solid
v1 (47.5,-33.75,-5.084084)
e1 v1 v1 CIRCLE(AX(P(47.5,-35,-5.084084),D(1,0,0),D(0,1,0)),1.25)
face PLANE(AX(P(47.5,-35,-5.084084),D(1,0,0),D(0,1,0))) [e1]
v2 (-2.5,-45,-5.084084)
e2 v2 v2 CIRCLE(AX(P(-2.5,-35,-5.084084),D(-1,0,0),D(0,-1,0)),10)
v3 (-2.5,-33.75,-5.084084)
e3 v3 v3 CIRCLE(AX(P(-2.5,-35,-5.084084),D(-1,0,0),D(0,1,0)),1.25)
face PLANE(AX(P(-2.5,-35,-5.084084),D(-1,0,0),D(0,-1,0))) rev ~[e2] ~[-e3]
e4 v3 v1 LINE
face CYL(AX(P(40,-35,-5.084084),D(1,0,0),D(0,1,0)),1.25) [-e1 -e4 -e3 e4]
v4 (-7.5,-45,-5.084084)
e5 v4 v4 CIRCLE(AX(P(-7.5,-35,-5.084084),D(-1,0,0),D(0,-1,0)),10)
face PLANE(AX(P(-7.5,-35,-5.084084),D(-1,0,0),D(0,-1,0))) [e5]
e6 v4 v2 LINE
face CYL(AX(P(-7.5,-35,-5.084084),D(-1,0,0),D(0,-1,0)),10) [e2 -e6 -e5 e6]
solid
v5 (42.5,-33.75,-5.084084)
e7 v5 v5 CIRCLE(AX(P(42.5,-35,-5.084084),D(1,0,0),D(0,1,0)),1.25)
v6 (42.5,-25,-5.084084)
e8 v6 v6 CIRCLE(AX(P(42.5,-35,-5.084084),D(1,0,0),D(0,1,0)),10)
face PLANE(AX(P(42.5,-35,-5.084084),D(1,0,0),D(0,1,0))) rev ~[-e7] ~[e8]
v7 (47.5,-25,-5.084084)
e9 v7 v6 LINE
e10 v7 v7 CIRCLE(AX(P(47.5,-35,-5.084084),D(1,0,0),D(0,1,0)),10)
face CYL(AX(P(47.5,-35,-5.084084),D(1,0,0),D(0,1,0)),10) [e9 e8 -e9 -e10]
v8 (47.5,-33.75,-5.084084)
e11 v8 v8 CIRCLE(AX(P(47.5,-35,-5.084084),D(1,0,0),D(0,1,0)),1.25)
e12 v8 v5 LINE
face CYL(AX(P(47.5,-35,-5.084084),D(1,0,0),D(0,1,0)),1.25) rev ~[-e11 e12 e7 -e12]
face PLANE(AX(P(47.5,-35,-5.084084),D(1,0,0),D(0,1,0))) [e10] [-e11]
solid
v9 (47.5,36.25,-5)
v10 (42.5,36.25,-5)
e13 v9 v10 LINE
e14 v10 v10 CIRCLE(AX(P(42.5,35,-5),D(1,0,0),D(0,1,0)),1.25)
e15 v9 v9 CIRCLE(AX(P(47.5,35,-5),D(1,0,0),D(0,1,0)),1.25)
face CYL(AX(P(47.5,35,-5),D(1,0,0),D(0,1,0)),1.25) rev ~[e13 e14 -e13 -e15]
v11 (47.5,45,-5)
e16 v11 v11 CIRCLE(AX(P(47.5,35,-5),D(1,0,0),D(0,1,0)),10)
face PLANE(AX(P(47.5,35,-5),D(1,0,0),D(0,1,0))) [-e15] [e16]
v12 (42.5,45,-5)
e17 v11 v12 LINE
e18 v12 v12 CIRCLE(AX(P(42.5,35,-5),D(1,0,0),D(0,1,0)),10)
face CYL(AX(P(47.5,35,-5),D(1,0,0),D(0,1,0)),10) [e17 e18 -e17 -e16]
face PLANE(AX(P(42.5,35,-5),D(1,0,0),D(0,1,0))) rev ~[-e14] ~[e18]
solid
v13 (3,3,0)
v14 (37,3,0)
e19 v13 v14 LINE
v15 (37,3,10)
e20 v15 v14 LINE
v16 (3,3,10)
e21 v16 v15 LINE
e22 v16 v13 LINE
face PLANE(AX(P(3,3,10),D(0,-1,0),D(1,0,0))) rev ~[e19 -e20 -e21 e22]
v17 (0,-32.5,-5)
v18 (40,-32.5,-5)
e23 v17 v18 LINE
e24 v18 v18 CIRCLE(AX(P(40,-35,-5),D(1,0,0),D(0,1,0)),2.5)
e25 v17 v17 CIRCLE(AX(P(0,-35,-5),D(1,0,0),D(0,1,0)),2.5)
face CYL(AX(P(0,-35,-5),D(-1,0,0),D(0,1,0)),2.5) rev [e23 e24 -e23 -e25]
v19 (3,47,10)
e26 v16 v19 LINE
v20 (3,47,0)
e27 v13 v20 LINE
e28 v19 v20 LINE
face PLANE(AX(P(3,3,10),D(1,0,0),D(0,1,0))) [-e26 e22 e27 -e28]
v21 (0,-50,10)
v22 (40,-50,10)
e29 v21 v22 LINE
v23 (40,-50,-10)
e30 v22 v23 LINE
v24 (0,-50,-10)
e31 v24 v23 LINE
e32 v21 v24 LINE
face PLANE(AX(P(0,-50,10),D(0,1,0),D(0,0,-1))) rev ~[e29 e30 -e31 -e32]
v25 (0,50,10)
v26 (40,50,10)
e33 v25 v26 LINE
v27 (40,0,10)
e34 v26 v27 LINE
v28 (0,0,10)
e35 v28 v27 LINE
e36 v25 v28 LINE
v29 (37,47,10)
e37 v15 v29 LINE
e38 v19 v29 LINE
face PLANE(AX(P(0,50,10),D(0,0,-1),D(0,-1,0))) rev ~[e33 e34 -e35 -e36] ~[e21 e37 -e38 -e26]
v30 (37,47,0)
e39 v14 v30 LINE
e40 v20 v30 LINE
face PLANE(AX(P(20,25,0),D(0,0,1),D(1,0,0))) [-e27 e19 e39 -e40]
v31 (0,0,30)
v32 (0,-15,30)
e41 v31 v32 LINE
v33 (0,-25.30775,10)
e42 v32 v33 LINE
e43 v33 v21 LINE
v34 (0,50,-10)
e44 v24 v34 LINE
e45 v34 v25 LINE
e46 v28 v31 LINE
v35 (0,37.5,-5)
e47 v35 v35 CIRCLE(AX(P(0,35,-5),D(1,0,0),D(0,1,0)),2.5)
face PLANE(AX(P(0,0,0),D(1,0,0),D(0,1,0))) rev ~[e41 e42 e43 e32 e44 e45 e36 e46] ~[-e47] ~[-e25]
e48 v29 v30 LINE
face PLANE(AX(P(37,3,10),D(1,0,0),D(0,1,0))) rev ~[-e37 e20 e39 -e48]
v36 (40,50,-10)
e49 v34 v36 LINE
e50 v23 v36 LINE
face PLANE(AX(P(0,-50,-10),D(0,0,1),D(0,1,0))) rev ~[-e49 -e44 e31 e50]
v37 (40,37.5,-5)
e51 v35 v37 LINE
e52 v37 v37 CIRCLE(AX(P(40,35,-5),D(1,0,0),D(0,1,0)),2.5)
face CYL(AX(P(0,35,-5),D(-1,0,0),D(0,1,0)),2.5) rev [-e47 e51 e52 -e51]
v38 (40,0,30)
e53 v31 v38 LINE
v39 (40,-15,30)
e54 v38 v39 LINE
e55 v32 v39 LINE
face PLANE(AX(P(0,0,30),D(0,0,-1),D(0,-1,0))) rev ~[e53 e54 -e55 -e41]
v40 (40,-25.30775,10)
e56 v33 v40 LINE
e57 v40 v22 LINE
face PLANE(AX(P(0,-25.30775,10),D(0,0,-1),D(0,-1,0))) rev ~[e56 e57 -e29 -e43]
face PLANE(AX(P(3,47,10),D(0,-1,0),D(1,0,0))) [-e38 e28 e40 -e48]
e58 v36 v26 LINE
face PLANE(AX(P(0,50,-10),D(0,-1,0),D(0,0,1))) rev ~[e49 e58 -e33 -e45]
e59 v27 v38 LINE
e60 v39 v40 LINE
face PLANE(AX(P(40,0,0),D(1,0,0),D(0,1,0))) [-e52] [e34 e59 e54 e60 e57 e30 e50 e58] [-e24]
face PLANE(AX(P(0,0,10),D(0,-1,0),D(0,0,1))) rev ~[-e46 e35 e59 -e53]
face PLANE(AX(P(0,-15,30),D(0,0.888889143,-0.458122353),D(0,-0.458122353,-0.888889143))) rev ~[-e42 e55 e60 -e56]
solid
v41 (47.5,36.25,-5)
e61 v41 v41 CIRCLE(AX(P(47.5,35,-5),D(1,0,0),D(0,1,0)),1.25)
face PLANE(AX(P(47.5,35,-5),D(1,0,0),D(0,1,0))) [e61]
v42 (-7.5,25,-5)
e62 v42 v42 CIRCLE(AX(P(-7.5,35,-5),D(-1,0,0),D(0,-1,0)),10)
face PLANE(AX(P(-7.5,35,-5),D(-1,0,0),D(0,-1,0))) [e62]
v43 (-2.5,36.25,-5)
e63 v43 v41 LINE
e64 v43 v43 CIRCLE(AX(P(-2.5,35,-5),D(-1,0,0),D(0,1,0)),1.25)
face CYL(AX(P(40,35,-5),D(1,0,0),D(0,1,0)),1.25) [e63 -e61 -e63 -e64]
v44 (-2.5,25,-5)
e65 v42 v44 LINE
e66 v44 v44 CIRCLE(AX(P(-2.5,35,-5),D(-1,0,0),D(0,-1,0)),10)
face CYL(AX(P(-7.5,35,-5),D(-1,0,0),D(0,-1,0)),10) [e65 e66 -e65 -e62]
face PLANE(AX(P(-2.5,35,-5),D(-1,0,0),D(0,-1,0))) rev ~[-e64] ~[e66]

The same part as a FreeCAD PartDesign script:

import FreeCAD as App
import Part
import Sketcher

V = App.Vector
Q = App.Units.Quantity


def add_polygon(sketch, points):
    """Adds a closed chain of lines whose ends are joined by coincident constraints."""
    first, n = sketch.GeometryCount, len(points)
    for a, b in zip(points, points[1:] + points[:1]):
        sketch.addGeometry(Part.LineSegment(App.Vector(*a, 0), App.Vector(*b, 0)), False)
    for i in range(n):
        sketch.addConstraint(Sketcher.Constraint("Coincident", first + i, 2, first + (i + 1) % n, 1))

doc = App.newDocument("Part")
body = doc.addObject("PartDesign::Body", "Body")

# Sketch on YZ plane
sketch1 = body.newObject("Sketcher::SketchObject", "Sketch")
sketch1.AttachmentSupport = (doc.getObject("YZ_Plane"), [""])
sketch1.MapMode = "FlatFace"
add_polygon(sketch1, [(50, -10), (50, 10), (0, 10), (0, 30), (-15, 30), (-25.3, 10), (-50, 10), (-50, -10)])  # lines 0-7
sketch1.addGeometry(Part.Circle(V(-35, -5, 0), V(0, 0, 1), 2.5), False)  # 8
sketch1.addGeometry(Part.Circle(V(35, -5, 0), V(0, 0, 1), 2.5), False)  # 9
sketch1.addConstraint(Sketcher.Constraint("Vertical", 0))
sketch1.addConstraint(Sketcher.Constraint("Horizontal", 1))
sketch1.addConstraint(Sketcher.Constraint("Vertical", 2))
sketch1.addConstraint(Sketcher.Constraint("Horizontal", 3))
sketch1.addConstraint(Sketcher.Constraint("Horizontal", 5))
sketch1.addConstraint(Sketcher.Constraint("Vertical", 6))
sketch1.addConstraint(Sketcher.Constraint("Horizontal", 7))
sketch1.addConstraint(Sketcher.Constraint("Equal", 8, 9))
sketch1.addConstraint(Sketcher.Constraint("Symmetric", 0, 2, 6, 2, -1, 1))
sketch1.addConstraint(Sketcher.Constraint("Symmetric", 8, 3, 9, 3, -2))
sketch1.addConstraint(Sketcher.Constraint("PointOnObject", 1, 2, -2))
sketch1.addConstraint(Sketcher.Constraint("Horizontal", 1, 2, 4, 2))
sketch1.addConstraint(Sketcher.Constraint("Equal", 0, 2))
sketch1.addConstraint(Sketcher.Constraint("Diameter", 8, Q("5 mm")))
sketch1.addConstraint(Sketcher.Constraint("DistanceX", 1, 2, 1, 1, Q("50 mm")))
sketch1.addConstraint(Sketcher.Constraint("DistanceX", 3, 2, 3, 1, Q("15 mm")))
sketch1.addConstraint(Sketcher.Constraint("DistanceY", 0, 1, 0, 2, Q("20 mm")))
sketch1.addConstraint(Sketcher.Constraint("DistanceX", 8, 3, -1, 1, Q("35 mm")))
sketch1.addConstraint(Sketcher.Constraint("DistanceY", 8, 3, -1, 1, Q("5 mm")))
sketch1.addConstraint(Sketcher.Constraint("DistanceX", 5, 2, 5, 1, Q("24.69225 mm")))
pad1 = body.newObject("PartDesign::Pad", "Pad")
pad1.Profile = sketch1
pad1.Length = 40

# Sketch on XY plane
sketch2 = body.newObject("Sketcher::SketchObject", "Sketch001")
sketch2.AttachmentSupport = (doc.getObject("XY_Plane"), [""])
sketch2.MapMode = "FlatFace"
sketch2.AttachmentOffset = App.Placement(V(0, 0, 10), App.Rotation())
add_polygon(sketch2, [(3, 47), (3, 3), (37, 3), (37, 47)])  # lines 0-3
sketch2.addConstraint(Sketcher.Constraint("Vertical", 0))
sketch2.addConstraint(Sketcher.Constraint("Horizontal", 1))
sketch2.addConstraint(Sketcher.Constraint("Vertical", 2))
sketch2.addConstraint(Sketcher.Constraint("Horizontal", 3))
sketch2.addConstraint(Sketcher.Constraint("DistanceX", 1, 1, 1, 2, Q("34 mm")))
sketch2.addConstraint(Sketcher.Constraint("DistanceY", 0, 2, 0, 1, Q("44 mm")))
sketch2.addConstraint(Sketcher.Constraint("DistanceX", -1, 1, 0, 2, Q("3 mm")))
sketch2.addConstraint(Sketcher.Constraint("DistanceY", -1, 1, 0, 2, Q("3 mm")))
pocket1 = body.newObject("PartDesign::Pocket", "Pocket")
pocket1.Profile = sketch2
pocket1.Length = 10
body2 = doc.addObject("PartDesign::Body", "Body001")

# Sketch on YZ plane
sketch3 = body2.newObject("Sketcher::SketchObject", "Sketch002")
sketch3.AttachmentSupport = (doc.getObject("YZ_Plane001"), [""])
sketch3.MapMode = "FlatFace"
sketch3.AttachmentOffset = App.Placement(V(0, 0, 40), App.Rotation())
sketch3.addGeometry(Part.Circle(V(-35, -5.1, 0), V(0, 0, 1), 1.2), False)
sketch3.addConstraint(Sketcher.Constraint("Diameter", 0, Q("2.5 mm")))
sketch3.addConstraint(Sketcher.Constraint("DistanceX", 0, 3, -1, 1, Q("35 mm")))
sketch3.addConstraint(Sketcher.Constraint("DistanceY", 0, 3, -1, 1, Q("5.084084 mm")))
pad2 = body2.newObject("PartDesign::Pad", "Pad001")
pad2.Profile = sketch3
pad2.Length = 47.5
pad2.Reversed = True

# Sketch on YZ plane
sketch4 = body2.newObject("Sketcher::SketchObject", "Sketch003")
sketch4.AttachmentSupport = (doc.getObject("YZ_Plane001"), [""])
sketch4.MapMode = "FlatFace"
sketch4.AttachmentOffset = App.Placement(V(0, 0, 40), App.Rotation())
sketch4.addGeometry(Part.Circle(V(-35, -5.1, 0), V(0, 0, 1), 1.2), False)
sketch4.addConstraint(Sketcher.Constraint("Diameter", 0, Q("2.5 mm")))
sketch4.addConstraint(Sketcher.Constraint("DistanceX", 0, 3, -1, 1, Q("35 mm")))
sketch4.addConstraint(Sketcher.Constraint("DistanceY", 0, 3, -1, 1, Q("5.084084 mm")))
pad3 = body2.newObject("PartDesign::Pad", "Pad002")
pad3.Profile = sketch4
pad3.Length = 7.5

# Sketch on YZ plane
sketch5 = body2.newObject("Sketcher::SketchObject", "Sketch004")
sketch5.AttachmentSupport = (doc.getObject("YZ_Plane001"), [""])
sketch5.MapMode = "FlatFace"
sketch5.AttachmentOffset = App.Placement(V(0, 0, -7.5), App.Rotation())
sketch5.addGeometry(Part.Circle(V(-35, -5.1, 0), V(0, 0, 1), 10), False)
sketch5.addGeometry(Part.Circle(V(-35, -5.1, 0), V(0, 0, 1), 1.2), False)
sketch5.addConstraint(Sketcher.Constraint("Coincident", 1, 3, 0, 3))
sketch5.addConstraint(Sketcher.Constraint("Diameter", 0, Q("20 mm")))
sketch5.addConstraint(Sketcher.Constraint("Diameter", 1, Q("2.5 mm")))
sketch5.addConstraint(Sketcher.Constraint("DistanceX", 0, 3, -1, 1, Q("35 mm")))
sketch5.addConstraint(Sketcher.Constraint("DistanceY", 0, 3, -1, 1, Q("5.084084 mm")))
pad4 = body2.newObject("PartDesign::Pad", "Pad003")
pad4.Profile = sketch5
pad4.Length = 5
body3 = doc.addObject("PartDesign::Body", "Body002")

# Sketch on YZ plane
sketch6 = body3.newObject("Sketcher::SketchObject", "Sketch005")
sketch6.AttachmentSupport = (doc.getObject("YZ_Plane002"), [""])
sketch6.MapMode = "FlatFace"
sketch6.AttachmentOffset = App.Placement(V(0, 0, 40), App.Rotation())
sketch6.addGeometry(Part.Circle(V(35, -5, 0), V(0, 0, 1), 1.2), False)
sketch6.addConstraint(Sketcher.Constraint("Diameter", 0, Q("2.5 mm")))
sketch6.addConstraint(Sketcher.Constraint("DistanceX", -1, 1, 0, 3, Q("35 mm")))
sketch6.addConstraint(Sketcher.Constraint("DistanceY", 0, 3, -1, 1, Q("5 mm")))
pad5 = body3.newObject("PartDesign::Pad", "Pad004")
pad5.Profile = sketch6
pad5.Length = 47.5
pad5.Reversed = True

# Sketch on YZ plane
sketch7 = body3.newObject("Sketcher::SketchObject", "Sketch006")
sketch7.AttachmentSupport = (doc.getObject("YZ_Plane002"), [""])
sketch7.MapMode = "FlatFace"
sketch7.AttachmentOffset = App.Placement(V(0, 0, 40), App.Rotation())
sketch7.addGeometry(Part.Circle(V(35, -5, 0), V(0, 0, 1), 1.2), False)
sketch7.addConstraint(Sketcher.Constraint("Diameter", 0, Q("2.5 mm")))
sketch7.addConstraint(Sketcher.Constraint("DistanceX", -1, 1, 0, 3, Q("35 mm")))
sketch7.addConstraint(Sketcher.Constraint("DistanceY", 0, 3, -1, 1, Q("5 mm")))
pad6 = body3.newObject("PartDesign::Pad", "Pad005")
pad6.Profile = sketch7
pad6.Length = 7.5

# Sketch on YZ plane
sketch8 = body3.newObject("Sketcher::SketchObject", "Sketch007")
sketch8.AttachmentSupport = (doc.getObject("YZ_Plane002"), [""])
sketch8.MapMode = "FlatFace"
sketch8.AttachmentOffset = App.Placement(V(0, 0, -7.5), App.Rotation())
sketch8.addGeometry(Part.Circle(V(35, -5, 0), V(0, 0, 1), 10), False)
sketch8.addGeometry(Part.Circle(V(35, -5, 0), V(0, 0, 1), 1.2), False)
sketch8.addConstraint(Sketcher.Constraint("Coincident", 1, 3, 0, 3))
sketch8.addConstraint(Sketcher.Constraint("Diameter", 0, Q("20 mm")))
sketch8.addConstraint(Sketcher.Constraint("Diameter", 1, Q("2.5 mm")))
sketch8.addConstraint(Sketcher.Constraint("DistanceX", -1, 1, 0, 3, Q("35 mm")))
sketch8.addConstraint(Sketcher.Constraint("DistanceY", 0, 3, -1, 1, Q("5 mm")))
pad7 = body3.newObject("PartDesign::Pad", "Pad006")
pad7.Profile = sketch8
pad7.Length = 5
body4 = doc.addObject("PartDesign::Body", "Body003")

# Sketch on YZ plane
sketch9 = body4.newObject("Sketcher::SketchObject", "Sketch008")
sketch9.AttachmentSupport = (doc.getObject("YZ_Plane003"), [""])
sketch9.MapMode = "FlatFace"
sketch9.AttachmentOffset = App.Placement(V(0, 0, 47.5), App.Rotation())
sketch9.addGeometry(Part.Circle(V(-35, -5.1, 0), V(0, 0, 1), 10), False)
sketch9.addGeometry(Part.Circle(V(-35, -5.1, 0), V(0, 0, 1), 1.2), False)
sketch9.addConstraint(Sketcher.Constraint("Coincident", 1, 3, 0, 3))
sketch9.addConstraint(Sketcher.Constraint("Diameter", 0, Q("20 mm")))
sketch9.addConstraint(Sketcher.Constraint("Diameter", 1, Q("2.5 mm")))
sketch9.addConstraint(Sketcher.Constraint("DistanceX", 0, 3, -1, 1, Q("35 mm")))
sketch9.addConstraint(Sketcher.Constraint("DistanceY", 0, 3, -1, 1, Q("5.084084 mm")))
pad8 = body4.newObject("PartDesign::Pad", "Pad007")
pad8.Profile = sketch9
pad8.Length = 5
pad8.Reversed = True
body5 = doc.addObject("PartDesign::Body", "Body004")

# Sketch on YZ plane
sketch10 = body5.newObject("Sketcher::SketchObject", "Sketch009")
sketch10.AttachmentSupport = (doc.getObject("YZ_Plane004"), [""])
sketch10.MapMode = "FlatFace"
sketch10.AttachmentOffset = App.Placement(V(0, 0, 47.5), App.Rotation())
sketch10.addGeometry(Part.Circle(V(35, -5, 0), V(0, 0, 1), 10), False)
sketch10.addGeometry(Part.Circle(V(35, -5, 0), V(0, 0, 1), 1.2), False)
sketch10.addConstraint(Sketcher.Constraint("Coincident", 1, 3, 0, 3))
sketch10.addConstraint(Sketcher.Constraint("Diameter", 0, Q("20 mm")))
sketch10.addConstraint(Sketcher.Constraint("Diameter", 1, Q("2.5 mm")))
sketch10.addConstraint(Sketcher.Constraint("DistanceX", -1, 1, 0, 3, Q("35 mm")))
sketch10.addConstraint(Sketcher.Constraint("DistanceY", 0, 3, -1, 1, Q("5 mm")))
pad9 = body5.newObject("PartDesign::Pad", "Pad008")
pad9.Profile = sketch10
pad9.Length = 5
pad9.Reversed = True

doc.recompute()
